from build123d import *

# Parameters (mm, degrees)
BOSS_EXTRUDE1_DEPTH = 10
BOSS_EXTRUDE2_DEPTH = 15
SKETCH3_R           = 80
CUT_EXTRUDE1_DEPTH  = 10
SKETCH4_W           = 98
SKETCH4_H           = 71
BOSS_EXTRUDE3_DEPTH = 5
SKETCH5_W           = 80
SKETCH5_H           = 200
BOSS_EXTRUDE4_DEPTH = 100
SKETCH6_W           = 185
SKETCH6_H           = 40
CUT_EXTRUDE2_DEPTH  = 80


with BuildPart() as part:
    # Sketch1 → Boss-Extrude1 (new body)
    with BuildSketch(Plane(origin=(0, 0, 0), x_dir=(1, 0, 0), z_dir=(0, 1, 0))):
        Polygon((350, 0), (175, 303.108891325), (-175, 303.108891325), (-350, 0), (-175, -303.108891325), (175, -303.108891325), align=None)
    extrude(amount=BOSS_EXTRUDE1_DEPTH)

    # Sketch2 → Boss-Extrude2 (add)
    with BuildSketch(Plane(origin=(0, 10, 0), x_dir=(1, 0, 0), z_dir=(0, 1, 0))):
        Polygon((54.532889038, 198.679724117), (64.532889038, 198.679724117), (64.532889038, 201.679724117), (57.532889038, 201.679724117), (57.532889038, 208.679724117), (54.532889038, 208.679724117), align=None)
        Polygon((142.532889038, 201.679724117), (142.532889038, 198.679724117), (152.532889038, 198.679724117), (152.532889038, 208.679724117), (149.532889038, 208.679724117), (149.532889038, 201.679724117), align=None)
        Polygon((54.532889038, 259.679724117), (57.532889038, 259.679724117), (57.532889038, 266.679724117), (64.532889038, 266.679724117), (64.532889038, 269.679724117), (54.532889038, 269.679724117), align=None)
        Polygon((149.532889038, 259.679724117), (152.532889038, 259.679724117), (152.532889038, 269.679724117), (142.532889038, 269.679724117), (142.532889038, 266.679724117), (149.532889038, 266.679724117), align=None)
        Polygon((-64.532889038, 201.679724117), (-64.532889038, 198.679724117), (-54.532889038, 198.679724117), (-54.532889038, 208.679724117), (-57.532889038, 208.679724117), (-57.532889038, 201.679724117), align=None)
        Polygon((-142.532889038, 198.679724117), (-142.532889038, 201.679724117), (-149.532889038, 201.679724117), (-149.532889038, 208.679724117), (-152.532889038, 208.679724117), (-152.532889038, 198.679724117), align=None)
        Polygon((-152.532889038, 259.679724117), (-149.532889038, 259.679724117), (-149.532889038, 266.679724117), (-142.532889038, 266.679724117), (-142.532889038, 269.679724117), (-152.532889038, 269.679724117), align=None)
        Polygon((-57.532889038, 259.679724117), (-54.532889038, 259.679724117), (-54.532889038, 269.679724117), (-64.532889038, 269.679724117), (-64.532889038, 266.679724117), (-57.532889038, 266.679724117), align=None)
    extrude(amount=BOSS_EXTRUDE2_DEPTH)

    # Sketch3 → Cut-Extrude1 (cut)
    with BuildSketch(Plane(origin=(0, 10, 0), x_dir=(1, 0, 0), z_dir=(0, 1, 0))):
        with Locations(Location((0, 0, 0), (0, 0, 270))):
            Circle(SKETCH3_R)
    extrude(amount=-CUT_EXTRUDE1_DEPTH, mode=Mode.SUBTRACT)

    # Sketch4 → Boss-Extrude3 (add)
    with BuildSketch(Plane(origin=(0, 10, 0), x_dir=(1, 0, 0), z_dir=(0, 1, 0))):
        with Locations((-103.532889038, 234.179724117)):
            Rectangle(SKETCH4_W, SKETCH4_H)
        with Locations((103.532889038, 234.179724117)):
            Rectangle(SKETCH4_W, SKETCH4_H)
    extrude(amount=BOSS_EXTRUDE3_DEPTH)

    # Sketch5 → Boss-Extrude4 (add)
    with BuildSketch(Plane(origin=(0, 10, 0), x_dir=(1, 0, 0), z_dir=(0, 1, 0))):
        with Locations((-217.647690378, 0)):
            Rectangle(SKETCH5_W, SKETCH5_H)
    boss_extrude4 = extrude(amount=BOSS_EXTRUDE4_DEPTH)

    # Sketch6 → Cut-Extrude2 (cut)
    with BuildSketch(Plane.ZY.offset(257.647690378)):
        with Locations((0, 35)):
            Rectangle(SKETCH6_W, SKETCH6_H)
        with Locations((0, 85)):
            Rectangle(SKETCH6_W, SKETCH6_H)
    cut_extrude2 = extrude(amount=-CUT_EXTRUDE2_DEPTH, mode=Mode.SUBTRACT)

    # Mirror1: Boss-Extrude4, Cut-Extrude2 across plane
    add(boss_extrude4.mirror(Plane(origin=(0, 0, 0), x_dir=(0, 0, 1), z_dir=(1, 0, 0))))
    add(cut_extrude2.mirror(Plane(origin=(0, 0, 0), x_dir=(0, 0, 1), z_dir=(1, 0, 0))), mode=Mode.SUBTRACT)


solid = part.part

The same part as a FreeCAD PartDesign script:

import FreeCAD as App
import Part
import Sketcher

V = App.Vector
Q = App.Units.Quantity


def add_polygon(sketch, points):
    """Adds a closed chain of lines whose ends are joined by coincident constraints."""
    first, n = sketch.GeometryCount, len(points)
    for a, b in zip(points, points[1:] + points[:1]):
        sketch.addGeometry(Part.LineSegment(App.Vector(*a, 0), App.Vector(*b, 0)), False)
    for i in range(n):
        sketch.addConstraint(Sketcher.Constraint("Coincident", first + i, 2, first + (i + 1) % n, 1))

doc = App.newDocument("Part")
body = doc.addObject("PartDesign::Body", "Body")

# Sketch on XZ plane
sketch1 = doc.addObject("Sketcher::SketchObject", "Sketch")
body.addObject(sketch1)
sketch1.AttachmentSupport = (doc.XZ_Plane, [""])
sketch1.MapMode = "FlatFace"
add_polygon(sketch1, [(350, 0), (175, -303), (-175, -303), (-350, 0), (-175, 303), (175, 303)])  # lines 0-5
sketch1.addConstraint(Sketcher.Constraint("Horizontal", 1))
sketch1.addConstraint(Sketcher.Constraint("Horizontal", 4))
sketch1.addConstraint(Sketcher.Constraint("Symmetric", 0, 2, 3, 2, -1, 1))
sketch1.addConstraint(Sketcher.Constraint("Symmetric", 2, 2, 5, 2, -1, 1))
sketch1.addConstraint(Sketcher.Constraint("PointOnObject", 2, 2, -1))
sketch1.addConstraint(Sketcher.Constraint("Parallel", 2, 5))
sketch1.addConstraint(Sketcher.Constraint("Vertical", 1, 2, 3, 2))
sketch1.addConstraint(Sketcher.Constraint("DistanceX", 1, 2, 1, 1, Q("350 mm")))
sketch1.addConstraint(Sketcher.Constraint("Angle", 0, Q("-120 deg")))
sketch1.addConstraint(Sketcher.Constraint("Distance", 0, Q("350 mm")))
pad1 = doc.addObject("PartDesign::Pad", "Pad")
body.addObject(pad1)
pad1.Profile = sketch1
pad1.Length = 10
pad1.Reversed = True

# Sketch on XZ plane
sketch2 = doc.addObject("Sketcher::SketchObject", "Sketch001")
body.addObject(sketch2)
sketch2.AttachmentSupport = (doc.XZ_Plane, [""])
sketch2.MapMode = "FlatFace"
sketch2.AttachmentOffset = App.Placement(V(0, 0, -10), App.Rotation())
add_polygon(sketch2, [(54.5, -198.7), (64.5, -198.7), (64.5, -201.7), (57.5, -201.7), (57.5, -208.7), (54.5, -208.7)])  # lines 0-5
add_polygon(sketch2, [(142.5, -201.7), (142.5, -198.7), (152.5, -198.7), (152.5, -208.7), (149.5, -208.7), (149.5, -201.7)])  # lines 6-11
add_polygon(sketch2, [(54.5, -259.7), (57.5, -259.7), (57.5, -266.7), (64.5, -266.7), (64.5, -269.7), (54.5, -269.7)])  # lines 12-17
add_polygon(sketch2, [(149.5, -259.7), (152.5, -259.7), (152.5, -269.7), (142.5, -269.7), (142.5, -266.7), (149.5, -266.7)])  # lines 18-23
add_polygon(sketch2, [(-64.5, -201.7), (-64.5, -198.7), (-54.5, -198.7), (-54.5, -208.7), (-57.5, -208.7), (-57.5, -201.7)])  # lines 24-29
add_polygon(sketch2, [(-142.5, -198.7), (-142.5, -201.7), (-149.5, -201.7), (-149.5, -208.7), (-152.5, -208.7), (-152.5, -198.7)])  # lines 30-35
add_polygon(sketch2, [(-152.5, -259.7), (-149.5, -259.7), (-149.5, -266.7), (-142.5, -266.7), (-142.5, -269.7), (-152.5, -269.7)])  # lines 36-41
add_polygon(sketch2, [(-57.5, -259.7), (-54.5, -259.7), (-54.5, -269.7), (-64.5, -269.7), (-64.5, -266.7), (-57.5, -266.7)])  # lines 42-47
sketch2.addConstraint(Sketcher.Constraint("Horizontal", 0))
sketch2.addConstraint(Sketcher.Constraint("Vertical", 1))
sketch2.addConstraint(Sketcher.Constraint("Horizontal", 2))
sketch2.addConstraint(Sketcher.Constraint("Vertical", 3))
sketch2.addConstraint(Sketcher.Constraint("Horizontal", 4))
sketch2.addConstraint(Sketcher.Constraint("Vertical", 5))
sketch2.addConstraint(Sketcher.Constraint("Vertical", 6))
sketch2.addConstraint(Sketcher.Constraint("Horizontal", 7))
sketch2.addConstraint(Sketcher.Constraint("Vertical", 8))
sketch2.addConstraint(Sketcher.Constraint("Horizontal", 9))
sketch2.addConstraint(Sketcher.Constraint("Vertical", 10))
sketch2.addConstraint(Sketcher.Constraint("Horizontal", 11))
sketch2.addConstraint(Sketcher.Constraint("Horizontal", 12))
sketch2.addConstraint(Sketcher.Constraint("Vertical", 13))
sketch2.addConstraint(Sketcher.Constraint("Horizontal", 14))
sketch2.addConstraint(Sketcher.Constraint("Vertical", 15))
sketch2.addConstraint(Sketcher.Constraint("Horizontal", 16))
sketch2.addConstraint(Sketcher.Constraint("Vertical", 17))
sketch2.addConstraint(Sketcher.Constraint("Horizontal", 18))
sketch2.addConstraint(Sketcher.Constraint("Vertical", 19))
sketch2.addConstraint(Sketcher.Constraint("Horizontal", 20))
sketch2.addConstraint(Sketcher.Constraint("Vertical", 21))
sketch2.addConstraint(Sketcher.Constraint("Horizontal", 22))
sketch2.addConstraint(Sketcher.Constraint("Vertical", 23))
sketch2.addConstraint(Sketcher.Constraint("Vertical", 24))
sketch2.addConstraint(Sketcher.Constraint("Horizontal", 25))
sketch2.addConstraint(Sketcher.Constraint("Vertical", 26))
sketch2.addConstraint(Sketcher.Constraint("Horizontal", 27))
sketch2.addConstraint(Sketcher.Constraint("Vertical", 28))
sketch2.addConstraint(Sketcher.Constraint("Horizontal", 29))
sketch2.addConstraint(Sketcher.Constraint("Vertical", 30))
sketch2.addConstraint(Sketcher.Constraint("Horizontal", 31))
sketch2.addConstraint(Sketcher.Constraint("Vertical", 32))
sketch2.addConstraint(Sketcher.Constraint("Horizontal", 33))
sketch2.addConstraint(Sketcher.Constraint("Vertical", 34))
sketch2.addConstraint(Sketcher.Constraint("Horizontal", 35))
sketch2.addConstraint(Sketcher.Constraint("Horizontal", 36))
sketch2.addConstraint(Sketcher.Constraint("Vertical", 37))
sketch2.addConstraint(Sketcher.Constraint("Horizontal", 38))
sketch2.addConstraint(Sketcher.Constraint("Vertical", 39))
sketch2.addConstraint(Sketcher.Constraint("Horizontal", 40))
sketch2.addConstraint(Sketcher.Constraint("Vertical", 41))
sketch2.addConstraint(Sketcher.Constraint("Horizontal", 42))
sketch2.addConstraint(Sketcher.Constraint("Vertical", 43))
sketch2.addConstraint(Sketcher.Constraint("Horizontal", 44))
sketch2.addConstraint(Sketcher.Constraint("Vertical", 45))
sketch2.addConstraint(Sketcher.Constraint("Horizontal", 46))
sketch2.addConstraint(Sketcher.Constraint("Vertical", 47))
sketch2.addConstraint(Sketcher.Constraint("Symmetric", 0, 2, 24, 2, -2))
sketch2.addConstraint(Sketcher.Constraint("Symmetric", 4, 2, 26, 2, -2))
sketch2.addConstraint(Sketcher.Constraint("Symmetric", 2, 2, 28, 2, -2))
sketch2.addConstraint(Sketcher.Constraint("Symmetric", 11, 2, 30, 2, -2))
sketch2.addConstraint(Sketcher.Constraint("Symmetric", 9, 2, 32, 2, -2))
sketch2.addConstraint(Sketcher.Constraint("Symmetric", 7, 2, 34, 2, -2))
sketch2.addConstraint(Sketcher.Constraint("Symmetric", 23, 2, 36, 2, -2))
sketch2.addConstraint(Sketcher.Constraint("Symmetric", 21, 2, 38, 2, -2))
sketch2.addConstraint(Sketcher.Constraint("Symmetric", 19, 2, 40, 2, -2))
sketch2.addConstraint(Sketcher.Constraint("Symmetric", 17, 2, 42, 2, -2))
sketch2.addConstraint(Sketcher.Constraint("Symmetric", 15, 2, 44, 2, -2))
sketch2.addConstraint(Sketcher.Constraint("Symmetric", 13, 2, 46, 2, -2))
sketch2.addConstraint(Sketcher.Constraint("Horizontal", 5, 2, 6, 2))
sketch2.addConstraint(Sketcher.Constraint("Horizontal", 4, 2, 8, 2))
sketch2.addConstraint(Sketcher.Constraint("Horizontal", 2, 2, 10, 2))
sketch2.addConstraint(Sketcher.Constraint("Horizontal", 17, 2, 18, 2))
sketch2.addConstraint(Sketcher.Constraint("Horizontal", 16, 2, 19, 2))
sketch2.addConstraint(Sketcher.Constraint("Horizontal", 14, 2, 21, 2))
sketch2.addConstraint(Sketcher.Constraint("Vertical", 3, 2, 12, 2))
sketch2.addConstraint(Sketcher.Constraint("Vertical", 1, 2, 14, 2))
sketch2.addConstraint(Sketcher.Constraint("Vertical", 5, 2, 16, 2))
sketch2.addConstraint(Sketcher.Constraint("Vertical", 8, 2, 18, 2))
sketch2.addConstraint(Sketcher.Constraint("Vertical", 11, 2, 20, 2))
sketch2.addConstraint(Sketcher.Constraint("Vertical", 10, 2, 22, 2))
sketch2.addConstraint(Sketcher.Constraint("Equal", 0, 7))
sketch2.addConstraint(Sketcher.Constraint("Equal", 4, 9))
sketch2.addConstraint(Sketcher.Constraint("Equal", 42, 1))
sketch2.addConstraint(Sketcher.Constraint("Equal", 46, 3))
sketch2.addConstraint(Sketcher.Constraint("Equal", 10, 13))
sketch2.addConstraint(Sketcher.Constraint("Equal", 6, 15))
sketch2.addConstraint(Sketcher.Constraint("DistanceX", 0, 1, 0, 2, Q("10 mm")))
sketch2.addConstraint(Sketcher.Constraint("DistanceX", 2, 2, 2, 1, Q("7 mm")))
sketch2.addConstraint(Sketcher.Constraint("DistanceX", 0, 2, 6, 2, Q("78 mm")))
sketch2.addConstraint(Sketcher.Constraint("DistanceY", 12, 2, 3, 2, Q("51 mm")))
sketch2.addConstraint(Sketcher.Constraint("DistanceX", -1, 1, 0, 2, Q("64.532889 mm")))
sketch2.addConstraint(Sketcher.Constraint("DistanceY", 0, 2, -1, 1, Q("198.679724 mm")))
pad2 = doc.addObject("PartDesign::Pad", "Pad001")
body.addObject(pad2)
pad2.Profile = sketch2
pad2.Length = 15
pad2.Reversed = True

# Sketch on XZ plane
sketch3 = doc.addObject("Sketcher::SketchObject", "Sketch002")
body.addObject(sketch3)
sketch3.AttachmentSupport = (doc.XZ_Plane, [""])
sketch3.MapMode = "FlatFace"
sketch3.AttachmentOffset = App.Placement(V(0, 0, -10), App.Rotation())
sketch3.addGeometry(Part.Circle(V(0, 0, 0), V(0, 0, 1), 80), False)
sketch3.addConstraint(Sketcher.Constraint("Coincident", 0, 3, -1, 1))
sketch3.addConstraint(Sketcher.Constraint("Diameter", 0, Q("160 mm")))
pocket1 = doc.addObject("PartDesign::Pocket", "Pocket")
body.addObject(pocket1)
pocket1.Profile = sketch3
pocket1.Length = 10
pocket1.Reversed = True

# Sketch on XZ plane
sketch4 = doc.addObject("Sketcher::SketchObject", "Sketch003")
body.addObject(sketch4)
sketch4.AttachmentSupport = (doc.XZ_Plane, [""])
sketch4.MapMode = "FlatFace"
sketch4.AttachmentOffset = App.Placement(V(0, 0, -10), App.Rotation())
add_polygon(sketch4, [(-153, -270), (-153, -199), (-55, -199), (-55, -270)])  # lines 0-3
add_polygon(sketch4, [(55, -270), (55, -199), (153, -199), (153, -270)])  # lines 4-7
sketch4.addConstraint(Sketcher.Constraint("Vertical", 0))
sketch4.addConstraint(Sketcher.Constraint("Horizontal", 1))
sketch4.addConstraint(Sketcher.Constraint("Vertical", 2))
sketch4.addConstraint(Sketcher.Constraint("Horizontal", 3))
sketch4.addConstraint(Sketcher.Constraint("Vertical", 4))
sketch4.addConstraint(Sketcher.Constraint("Horizontal", 5))
sketch4.addConstraint(Sketcher.Constraint("Vertical", 6))
sketch4.addConstraint(Sketcher.Constraint("Horizontal", 7))
sketch4.addConstraint(Sketcher.Constraint("Symmetric", 1, 2, 4, 2, -2))
sketch4.addConstraint(Sketcher.Constraint("Symmetric", 3, 2, 6, 2, -2))
sketch4.addConstraint(Sketcher.Constraint("DistanceX", 1, 1, 1, 2, Q("98 mm")))
sketch4.addConstraint(Sketcher.Constraint("DistanceY", 0, 1, 0, 2, Q("71 mm")))
sketch4.addConstraint(Sketcher.Constraint("DistanceX", 0, 2, -1, 1, Q("152.532889 mm")))
sketch4.addConstraint(Sketcher.Constraint("DistanceY", 0, 2, -1, 1, Q("198.679724 mm")))
pad3 = doc.addObject("PartDesign::Pad", "Pad002")
body.addObject(pad3)
pad3.Profile = sketch4
pad3.Length = 5
pad3.Reversed = True

# Sketch on XZ plane
sketch5 = doc.addObject("Sketcher::SketchObject", "Sketch004")
body.addObject(sketch5)
sketch5.AttachmentSupport = (doc.XZ_Plane, [""])
sketch5.MapMode = "FlatFace"
sketch5.AttachmentOffset = App.Placement(V(0, 0, -10), App.Rotation())
add_polygon(sketch5, [(-258, -100), (-258, 100), (-178, 100), (-178, -100)])  # lines 0-3
sketch5.addConstraint(Sketcher.Constraint("Vertical", 0))
sketch5.addConstraint(Sketcher.Constraint("Horizontal", 1))
sketch5.addConstraint(Sketcher.Constraint("Vertical", 2))
sketch5.addConstraint(Sketcher.Constraint("Horizontal", 3))
sketch5.addConstraint(Sketcher.Constraint("DistanceX", 1, 1, 1, 2, Q("80 mm")))
sketch5.addConstraint(Sketcher.Constraint("DistanceY", 0, 1, 0, 2, Q("200 mm")))
sketch5.addConstraint(Sketcher.Constraint("DistanceY", -1, 1, 0, 2, Q("100 mm")))
sketch5.addConstraint(Sketcher.Constraint("DistanceX", 0, 2, -1, 1, Q("257.64769 mm")))
pad4 = doc.addObject("PartDesign::Pad", "Pad003")
body.addObject(pad4)
pad4.Profile = sketch5
pad4.Length = 100
pad4.Reversed = True

# Sketch on YZ plane
sketch6 = doc.addObject("Sketcher::SketchObject", "Sketch005")
body.addObject(sketch6)
sketch6.AttachmentSupport = (doc.YZ_Plane, [""])
sketch6.MapMode = "FlatFace"
sketch6.AttachmentOffset = App.Placement(V(0, 0, -257.64769), App.Rotation())
add_polygon(sketch6, [(55, -92), (15, -92), (15, 92), (55, 92)])  # lines 0-3
add_polygon(sketch6, [(105, -92), (65, -92), (65, 92), (105, 92)])  # lines 4-7
sketch6.addConstraint(Sketcher.Constraint("Horizontal", 0))
sketch6.addConstraint(Sketcher.Constraint("Vertical", 1))
sketch6.addConstraint(Sketcher.Constraint("Horizontal", 2))
sketch6.addConstraint(Sketcher.Constraint("Vertical", 3))
sketch6.addConstraint(Sketcher.Constraint("Horizontal", 4))
sketch6.addConstraint(Sketcher.Constraint("Vertical", 5))
sketch6.addConstraint(Sketcher.Constraint("Horizontal", 6))
sketch6.addConstraint(Sketcher.Constraint("Vertical", 7))
sketch6.addConstraint(Sketcher.Constraint("Horizontal", 3, 2, 4, 2))
sketch6.addConstraint(Sketcher.Constraint("Horizontal", 2, 2, 5, 2))
sketch6.addConstraint(Sketcher.Constraint("Equal", 2, 4))
sketch6.addConstraint(Sketcher.Constraint("DistanceX", 0, 2, 0, 1, Q("40 mm")))
sketch6.addConstraint(Sketcher.Constraint("DistanceY", 1, 1, 1, 2, Q("185 mm")))
sketch6.addConstraint(Sketcher.Constraint("DistanceX", -1, 1, 0, 2, Q("15 mm")))
sketch6.addConstraint(Sketcher.Constraint("DistanceX", -1, 1, 4, 2, Q("65 mm")))
sketch6.addConstraint(Sketcher.Constraint("DistanceY", 0, 2, -1, 1, Q("92.5 mm")))
pocket2 = doc.addObject("PartDesign::Pocket", "Pocket001")
body.addObject(pocket2)
pocket2.Profile = sketch6
pocket2.Length = 80
pocket2.Reversed = True
doc.recompute()

mirrored = doc.addObject("PartDesign::Mirrored", "Mirrored")
body.addObject(mirrored)
mirrored.Originals = [pad4, pocket2]
mirrored.MirrorPlane = (doc.YZ_Plane, [""])
body.Tip = mirrored

doc.recompute()
